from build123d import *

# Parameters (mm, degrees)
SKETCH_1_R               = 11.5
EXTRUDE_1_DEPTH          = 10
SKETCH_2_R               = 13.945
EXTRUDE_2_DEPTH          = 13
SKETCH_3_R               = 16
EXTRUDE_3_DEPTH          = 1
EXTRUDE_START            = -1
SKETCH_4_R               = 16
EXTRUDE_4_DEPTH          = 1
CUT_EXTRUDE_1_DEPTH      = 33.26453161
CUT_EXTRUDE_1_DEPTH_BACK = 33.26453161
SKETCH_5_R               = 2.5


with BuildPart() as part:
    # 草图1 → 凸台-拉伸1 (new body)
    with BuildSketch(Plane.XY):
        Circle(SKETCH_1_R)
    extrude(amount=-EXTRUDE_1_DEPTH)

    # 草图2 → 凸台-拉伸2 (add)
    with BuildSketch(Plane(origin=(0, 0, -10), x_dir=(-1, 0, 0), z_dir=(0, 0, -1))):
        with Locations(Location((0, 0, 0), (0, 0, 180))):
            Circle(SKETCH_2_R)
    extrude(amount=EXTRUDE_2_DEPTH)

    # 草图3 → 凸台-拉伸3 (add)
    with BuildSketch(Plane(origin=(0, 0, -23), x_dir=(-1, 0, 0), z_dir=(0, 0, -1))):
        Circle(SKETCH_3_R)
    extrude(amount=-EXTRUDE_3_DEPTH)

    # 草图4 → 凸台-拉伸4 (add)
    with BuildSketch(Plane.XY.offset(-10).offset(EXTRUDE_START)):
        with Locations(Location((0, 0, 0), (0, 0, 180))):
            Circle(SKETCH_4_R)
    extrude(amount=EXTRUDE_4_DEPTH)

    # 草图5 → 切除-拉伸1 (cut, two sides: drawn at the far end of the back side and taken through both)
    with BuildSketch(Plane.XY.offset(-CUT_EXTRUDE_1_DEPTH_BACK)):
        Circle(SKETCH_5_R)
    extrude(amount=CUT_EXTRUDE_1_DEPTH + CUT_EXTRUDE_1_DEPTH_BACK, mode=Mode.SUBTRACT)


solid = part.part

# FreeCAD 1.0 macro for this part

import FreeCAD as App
import Part
import Sketcher

doc = App.newDocument("Part")
params = doc.addObject("Spreadsheet::Sheet", "Params")
for row, (alias, value) in enumerate([
    ("sketch1_diameter", "23 mm"),
    ("pad1_length", "10 mm"),
    ("sketch2_diameter", "27.89 mm"),
    ("pad2_length", "13 mm"),
    ("sketch3_diameter", "32 mm"),
    ("pad3_length", "1 mm"),
    ("sketch4_diameter", "32 mm"),
    ("pad4_length", "1 mm"),
    ("sketch5_diameter", "5 mm"),
], start=1):
    params.set(f"A{row}", alias)
    params.set(f"B{row}", "=" + value)
    params.setAlias(f"B{row}", alias)

body = doc.addObject("PartDesign::Body", "Body")

# Sketch on XY plane
sketch1 = doc.addObject("Sketcher::SketchObject", "Sketch")
body.addObject(sketch1)
sketch1.AttachmentSupport = (doc.XY_Plane, [""])
sketch1.MapMode = "FlatFace"
sketch1.addGeometry(Part.Circle(App.Vector(0, 0, 0), App.Vector(0, 0, 1), 12), False)
sketch1.addConstraint(Sketcher.Constraint("Coincident", 0, 3, -1, 1))
sketch1.addConstraint(Sketcher.Constraint("Diameter", 0, 23.0))
sketch1.setExpression("Constraints[1]", "Params.sketch1_diameter")
pad1 = doc.addObject("PartDesign::Pad", "Pad")
body.addObject(pad1)
pad1.Profile = sketch1
pad1.setExpression("Length", "Params.pad1_length")
pad1.Reversed = True

# Sketch on XY plane
sketch2 = doc.addObject("Sketcher::SketchObject", "Sketch001")
body.addObject(sketch2)
sketch2.AttachmentSupport = (doc.XY_Plane, [""])
sketch2.MapMode = "FlatFace"
sketch2.AttachmentOffset = App.Placement(App.Vector(0, 0, -10), App.Rotation())
sketch2.addGeometry(Part.Circle(App.Vector(0, 0, 0), App.Vector(0, 0, 1), 14), False)
sketch2.addConstraint(Sketcher.Constraint("Coincident", 0, 3, -1, 1))
sketch2.addConstraint(Sketcher.Constraint("Diameter", 0, 27.89))
sketch2.setExpression("Constraints[1]", "Params.sketch2_diameter")
pad2 = doc.addObject("PartDesign::Pad", "Pad001")
body.addObject(pad2)
pad2.Profile = sketch2
pad2.setExpression("Length", "Params.pad2_length")
pad2.Reversed = True

# Sketch on XY plane
sketch3 = doc.addObject("Sketcher::SketchObject", "Sketch002")
body.addObject(sketch3)
sketch3.AttachmentSupport = (doc.XY_Plane, [""])
sketch3.MapMode = "FlatFace"
sketch3.AttachmentOffset = App.Placement(App.Vector(0, 0, -23), App.Rotation())
sketch3.addGeometry(Part.Circle(App.Vector(0, 0, 0), App.Vector(0, 0, 1), 16), False)
sketch3.addConstraint(Sketcher.Constraint("Coincident", 0, 3, -1, 1))
sketch3.addConstraint(Sketcher.Constraint("Diameter", 0, 32.0))
sketch3.setExpression("Constraints[1]", "Params.sketch3_diameter")
pad3 = doc.addObject("PartDesign::Pad", "Pad002")
body.addObject(pad3)
pad3.Profile = sketch3
pad3.setExpression("Length", "Params.pad3_length")

# Sketch on XY plane
sketch4 = doc.addObject("Sketcher::SketchObject", "Sketch003")
body.addObject(sketch4)
sketch4.AttachmentSupport = (doc.XY_Plane, [""])
sketch4.MapMode = "FlatFace"
sketch4.AttachmentOffset = App.Placement(App.Vector(0, 0, -11), App.Rotation())
sketch4.addGeometry(Part.Circle(App.Vector(0, 0, 0), App.Vector(0, 0, 1), 16), False)
sketch4.addConstraint(Sketcher.Constraint("Coincident", 0, 3, -1, 1))
sketch4.addConstraint(Sketcher.Constraint("Diameter", 0, 32.0))
sketch4.setExpression("Constraints[1]", "Params.sketch4_diameter")
pad4 = doc.addObject("PartDesign::Pad", "Pad003")
body.addObject(pad4)
pad4.Profile = sketch4
pad4.setExpression("Length", "Params.pad4_length")

# Sketch on XY plane
sketch5 = doc.addObject("Sketcher::SketchObject", "Sketch004")
body.addObject(sketch5)
sketch5.AttachmentSupport = (doc.XY_Plane, [""])
sketch5.MapMode = "FlatFace"
sketch5.addGeometry(Part.Circle(App.Vector(0, 0, 0), App.Vector(0, 0, 1), 2.5), False)
sketch5.addConstraint(Sketcher.Constraint("Coincident", 0, 3, -1, 1))
sketch5.addConstraint(Sketcher.Constraint("Diameter", 0, 5.0))
sketch5.setExpression("Constraints[1]", "Params.sketch5_diameter")
pocket1 = doc.addObject("PartDesign::Pocket", "Pocket")
body.addObject(pocket1)
pocket1.Profile = sketch5
pocket1.Type = "ThroughAll"
pocket1.Midplane = True

doc.recompute()
